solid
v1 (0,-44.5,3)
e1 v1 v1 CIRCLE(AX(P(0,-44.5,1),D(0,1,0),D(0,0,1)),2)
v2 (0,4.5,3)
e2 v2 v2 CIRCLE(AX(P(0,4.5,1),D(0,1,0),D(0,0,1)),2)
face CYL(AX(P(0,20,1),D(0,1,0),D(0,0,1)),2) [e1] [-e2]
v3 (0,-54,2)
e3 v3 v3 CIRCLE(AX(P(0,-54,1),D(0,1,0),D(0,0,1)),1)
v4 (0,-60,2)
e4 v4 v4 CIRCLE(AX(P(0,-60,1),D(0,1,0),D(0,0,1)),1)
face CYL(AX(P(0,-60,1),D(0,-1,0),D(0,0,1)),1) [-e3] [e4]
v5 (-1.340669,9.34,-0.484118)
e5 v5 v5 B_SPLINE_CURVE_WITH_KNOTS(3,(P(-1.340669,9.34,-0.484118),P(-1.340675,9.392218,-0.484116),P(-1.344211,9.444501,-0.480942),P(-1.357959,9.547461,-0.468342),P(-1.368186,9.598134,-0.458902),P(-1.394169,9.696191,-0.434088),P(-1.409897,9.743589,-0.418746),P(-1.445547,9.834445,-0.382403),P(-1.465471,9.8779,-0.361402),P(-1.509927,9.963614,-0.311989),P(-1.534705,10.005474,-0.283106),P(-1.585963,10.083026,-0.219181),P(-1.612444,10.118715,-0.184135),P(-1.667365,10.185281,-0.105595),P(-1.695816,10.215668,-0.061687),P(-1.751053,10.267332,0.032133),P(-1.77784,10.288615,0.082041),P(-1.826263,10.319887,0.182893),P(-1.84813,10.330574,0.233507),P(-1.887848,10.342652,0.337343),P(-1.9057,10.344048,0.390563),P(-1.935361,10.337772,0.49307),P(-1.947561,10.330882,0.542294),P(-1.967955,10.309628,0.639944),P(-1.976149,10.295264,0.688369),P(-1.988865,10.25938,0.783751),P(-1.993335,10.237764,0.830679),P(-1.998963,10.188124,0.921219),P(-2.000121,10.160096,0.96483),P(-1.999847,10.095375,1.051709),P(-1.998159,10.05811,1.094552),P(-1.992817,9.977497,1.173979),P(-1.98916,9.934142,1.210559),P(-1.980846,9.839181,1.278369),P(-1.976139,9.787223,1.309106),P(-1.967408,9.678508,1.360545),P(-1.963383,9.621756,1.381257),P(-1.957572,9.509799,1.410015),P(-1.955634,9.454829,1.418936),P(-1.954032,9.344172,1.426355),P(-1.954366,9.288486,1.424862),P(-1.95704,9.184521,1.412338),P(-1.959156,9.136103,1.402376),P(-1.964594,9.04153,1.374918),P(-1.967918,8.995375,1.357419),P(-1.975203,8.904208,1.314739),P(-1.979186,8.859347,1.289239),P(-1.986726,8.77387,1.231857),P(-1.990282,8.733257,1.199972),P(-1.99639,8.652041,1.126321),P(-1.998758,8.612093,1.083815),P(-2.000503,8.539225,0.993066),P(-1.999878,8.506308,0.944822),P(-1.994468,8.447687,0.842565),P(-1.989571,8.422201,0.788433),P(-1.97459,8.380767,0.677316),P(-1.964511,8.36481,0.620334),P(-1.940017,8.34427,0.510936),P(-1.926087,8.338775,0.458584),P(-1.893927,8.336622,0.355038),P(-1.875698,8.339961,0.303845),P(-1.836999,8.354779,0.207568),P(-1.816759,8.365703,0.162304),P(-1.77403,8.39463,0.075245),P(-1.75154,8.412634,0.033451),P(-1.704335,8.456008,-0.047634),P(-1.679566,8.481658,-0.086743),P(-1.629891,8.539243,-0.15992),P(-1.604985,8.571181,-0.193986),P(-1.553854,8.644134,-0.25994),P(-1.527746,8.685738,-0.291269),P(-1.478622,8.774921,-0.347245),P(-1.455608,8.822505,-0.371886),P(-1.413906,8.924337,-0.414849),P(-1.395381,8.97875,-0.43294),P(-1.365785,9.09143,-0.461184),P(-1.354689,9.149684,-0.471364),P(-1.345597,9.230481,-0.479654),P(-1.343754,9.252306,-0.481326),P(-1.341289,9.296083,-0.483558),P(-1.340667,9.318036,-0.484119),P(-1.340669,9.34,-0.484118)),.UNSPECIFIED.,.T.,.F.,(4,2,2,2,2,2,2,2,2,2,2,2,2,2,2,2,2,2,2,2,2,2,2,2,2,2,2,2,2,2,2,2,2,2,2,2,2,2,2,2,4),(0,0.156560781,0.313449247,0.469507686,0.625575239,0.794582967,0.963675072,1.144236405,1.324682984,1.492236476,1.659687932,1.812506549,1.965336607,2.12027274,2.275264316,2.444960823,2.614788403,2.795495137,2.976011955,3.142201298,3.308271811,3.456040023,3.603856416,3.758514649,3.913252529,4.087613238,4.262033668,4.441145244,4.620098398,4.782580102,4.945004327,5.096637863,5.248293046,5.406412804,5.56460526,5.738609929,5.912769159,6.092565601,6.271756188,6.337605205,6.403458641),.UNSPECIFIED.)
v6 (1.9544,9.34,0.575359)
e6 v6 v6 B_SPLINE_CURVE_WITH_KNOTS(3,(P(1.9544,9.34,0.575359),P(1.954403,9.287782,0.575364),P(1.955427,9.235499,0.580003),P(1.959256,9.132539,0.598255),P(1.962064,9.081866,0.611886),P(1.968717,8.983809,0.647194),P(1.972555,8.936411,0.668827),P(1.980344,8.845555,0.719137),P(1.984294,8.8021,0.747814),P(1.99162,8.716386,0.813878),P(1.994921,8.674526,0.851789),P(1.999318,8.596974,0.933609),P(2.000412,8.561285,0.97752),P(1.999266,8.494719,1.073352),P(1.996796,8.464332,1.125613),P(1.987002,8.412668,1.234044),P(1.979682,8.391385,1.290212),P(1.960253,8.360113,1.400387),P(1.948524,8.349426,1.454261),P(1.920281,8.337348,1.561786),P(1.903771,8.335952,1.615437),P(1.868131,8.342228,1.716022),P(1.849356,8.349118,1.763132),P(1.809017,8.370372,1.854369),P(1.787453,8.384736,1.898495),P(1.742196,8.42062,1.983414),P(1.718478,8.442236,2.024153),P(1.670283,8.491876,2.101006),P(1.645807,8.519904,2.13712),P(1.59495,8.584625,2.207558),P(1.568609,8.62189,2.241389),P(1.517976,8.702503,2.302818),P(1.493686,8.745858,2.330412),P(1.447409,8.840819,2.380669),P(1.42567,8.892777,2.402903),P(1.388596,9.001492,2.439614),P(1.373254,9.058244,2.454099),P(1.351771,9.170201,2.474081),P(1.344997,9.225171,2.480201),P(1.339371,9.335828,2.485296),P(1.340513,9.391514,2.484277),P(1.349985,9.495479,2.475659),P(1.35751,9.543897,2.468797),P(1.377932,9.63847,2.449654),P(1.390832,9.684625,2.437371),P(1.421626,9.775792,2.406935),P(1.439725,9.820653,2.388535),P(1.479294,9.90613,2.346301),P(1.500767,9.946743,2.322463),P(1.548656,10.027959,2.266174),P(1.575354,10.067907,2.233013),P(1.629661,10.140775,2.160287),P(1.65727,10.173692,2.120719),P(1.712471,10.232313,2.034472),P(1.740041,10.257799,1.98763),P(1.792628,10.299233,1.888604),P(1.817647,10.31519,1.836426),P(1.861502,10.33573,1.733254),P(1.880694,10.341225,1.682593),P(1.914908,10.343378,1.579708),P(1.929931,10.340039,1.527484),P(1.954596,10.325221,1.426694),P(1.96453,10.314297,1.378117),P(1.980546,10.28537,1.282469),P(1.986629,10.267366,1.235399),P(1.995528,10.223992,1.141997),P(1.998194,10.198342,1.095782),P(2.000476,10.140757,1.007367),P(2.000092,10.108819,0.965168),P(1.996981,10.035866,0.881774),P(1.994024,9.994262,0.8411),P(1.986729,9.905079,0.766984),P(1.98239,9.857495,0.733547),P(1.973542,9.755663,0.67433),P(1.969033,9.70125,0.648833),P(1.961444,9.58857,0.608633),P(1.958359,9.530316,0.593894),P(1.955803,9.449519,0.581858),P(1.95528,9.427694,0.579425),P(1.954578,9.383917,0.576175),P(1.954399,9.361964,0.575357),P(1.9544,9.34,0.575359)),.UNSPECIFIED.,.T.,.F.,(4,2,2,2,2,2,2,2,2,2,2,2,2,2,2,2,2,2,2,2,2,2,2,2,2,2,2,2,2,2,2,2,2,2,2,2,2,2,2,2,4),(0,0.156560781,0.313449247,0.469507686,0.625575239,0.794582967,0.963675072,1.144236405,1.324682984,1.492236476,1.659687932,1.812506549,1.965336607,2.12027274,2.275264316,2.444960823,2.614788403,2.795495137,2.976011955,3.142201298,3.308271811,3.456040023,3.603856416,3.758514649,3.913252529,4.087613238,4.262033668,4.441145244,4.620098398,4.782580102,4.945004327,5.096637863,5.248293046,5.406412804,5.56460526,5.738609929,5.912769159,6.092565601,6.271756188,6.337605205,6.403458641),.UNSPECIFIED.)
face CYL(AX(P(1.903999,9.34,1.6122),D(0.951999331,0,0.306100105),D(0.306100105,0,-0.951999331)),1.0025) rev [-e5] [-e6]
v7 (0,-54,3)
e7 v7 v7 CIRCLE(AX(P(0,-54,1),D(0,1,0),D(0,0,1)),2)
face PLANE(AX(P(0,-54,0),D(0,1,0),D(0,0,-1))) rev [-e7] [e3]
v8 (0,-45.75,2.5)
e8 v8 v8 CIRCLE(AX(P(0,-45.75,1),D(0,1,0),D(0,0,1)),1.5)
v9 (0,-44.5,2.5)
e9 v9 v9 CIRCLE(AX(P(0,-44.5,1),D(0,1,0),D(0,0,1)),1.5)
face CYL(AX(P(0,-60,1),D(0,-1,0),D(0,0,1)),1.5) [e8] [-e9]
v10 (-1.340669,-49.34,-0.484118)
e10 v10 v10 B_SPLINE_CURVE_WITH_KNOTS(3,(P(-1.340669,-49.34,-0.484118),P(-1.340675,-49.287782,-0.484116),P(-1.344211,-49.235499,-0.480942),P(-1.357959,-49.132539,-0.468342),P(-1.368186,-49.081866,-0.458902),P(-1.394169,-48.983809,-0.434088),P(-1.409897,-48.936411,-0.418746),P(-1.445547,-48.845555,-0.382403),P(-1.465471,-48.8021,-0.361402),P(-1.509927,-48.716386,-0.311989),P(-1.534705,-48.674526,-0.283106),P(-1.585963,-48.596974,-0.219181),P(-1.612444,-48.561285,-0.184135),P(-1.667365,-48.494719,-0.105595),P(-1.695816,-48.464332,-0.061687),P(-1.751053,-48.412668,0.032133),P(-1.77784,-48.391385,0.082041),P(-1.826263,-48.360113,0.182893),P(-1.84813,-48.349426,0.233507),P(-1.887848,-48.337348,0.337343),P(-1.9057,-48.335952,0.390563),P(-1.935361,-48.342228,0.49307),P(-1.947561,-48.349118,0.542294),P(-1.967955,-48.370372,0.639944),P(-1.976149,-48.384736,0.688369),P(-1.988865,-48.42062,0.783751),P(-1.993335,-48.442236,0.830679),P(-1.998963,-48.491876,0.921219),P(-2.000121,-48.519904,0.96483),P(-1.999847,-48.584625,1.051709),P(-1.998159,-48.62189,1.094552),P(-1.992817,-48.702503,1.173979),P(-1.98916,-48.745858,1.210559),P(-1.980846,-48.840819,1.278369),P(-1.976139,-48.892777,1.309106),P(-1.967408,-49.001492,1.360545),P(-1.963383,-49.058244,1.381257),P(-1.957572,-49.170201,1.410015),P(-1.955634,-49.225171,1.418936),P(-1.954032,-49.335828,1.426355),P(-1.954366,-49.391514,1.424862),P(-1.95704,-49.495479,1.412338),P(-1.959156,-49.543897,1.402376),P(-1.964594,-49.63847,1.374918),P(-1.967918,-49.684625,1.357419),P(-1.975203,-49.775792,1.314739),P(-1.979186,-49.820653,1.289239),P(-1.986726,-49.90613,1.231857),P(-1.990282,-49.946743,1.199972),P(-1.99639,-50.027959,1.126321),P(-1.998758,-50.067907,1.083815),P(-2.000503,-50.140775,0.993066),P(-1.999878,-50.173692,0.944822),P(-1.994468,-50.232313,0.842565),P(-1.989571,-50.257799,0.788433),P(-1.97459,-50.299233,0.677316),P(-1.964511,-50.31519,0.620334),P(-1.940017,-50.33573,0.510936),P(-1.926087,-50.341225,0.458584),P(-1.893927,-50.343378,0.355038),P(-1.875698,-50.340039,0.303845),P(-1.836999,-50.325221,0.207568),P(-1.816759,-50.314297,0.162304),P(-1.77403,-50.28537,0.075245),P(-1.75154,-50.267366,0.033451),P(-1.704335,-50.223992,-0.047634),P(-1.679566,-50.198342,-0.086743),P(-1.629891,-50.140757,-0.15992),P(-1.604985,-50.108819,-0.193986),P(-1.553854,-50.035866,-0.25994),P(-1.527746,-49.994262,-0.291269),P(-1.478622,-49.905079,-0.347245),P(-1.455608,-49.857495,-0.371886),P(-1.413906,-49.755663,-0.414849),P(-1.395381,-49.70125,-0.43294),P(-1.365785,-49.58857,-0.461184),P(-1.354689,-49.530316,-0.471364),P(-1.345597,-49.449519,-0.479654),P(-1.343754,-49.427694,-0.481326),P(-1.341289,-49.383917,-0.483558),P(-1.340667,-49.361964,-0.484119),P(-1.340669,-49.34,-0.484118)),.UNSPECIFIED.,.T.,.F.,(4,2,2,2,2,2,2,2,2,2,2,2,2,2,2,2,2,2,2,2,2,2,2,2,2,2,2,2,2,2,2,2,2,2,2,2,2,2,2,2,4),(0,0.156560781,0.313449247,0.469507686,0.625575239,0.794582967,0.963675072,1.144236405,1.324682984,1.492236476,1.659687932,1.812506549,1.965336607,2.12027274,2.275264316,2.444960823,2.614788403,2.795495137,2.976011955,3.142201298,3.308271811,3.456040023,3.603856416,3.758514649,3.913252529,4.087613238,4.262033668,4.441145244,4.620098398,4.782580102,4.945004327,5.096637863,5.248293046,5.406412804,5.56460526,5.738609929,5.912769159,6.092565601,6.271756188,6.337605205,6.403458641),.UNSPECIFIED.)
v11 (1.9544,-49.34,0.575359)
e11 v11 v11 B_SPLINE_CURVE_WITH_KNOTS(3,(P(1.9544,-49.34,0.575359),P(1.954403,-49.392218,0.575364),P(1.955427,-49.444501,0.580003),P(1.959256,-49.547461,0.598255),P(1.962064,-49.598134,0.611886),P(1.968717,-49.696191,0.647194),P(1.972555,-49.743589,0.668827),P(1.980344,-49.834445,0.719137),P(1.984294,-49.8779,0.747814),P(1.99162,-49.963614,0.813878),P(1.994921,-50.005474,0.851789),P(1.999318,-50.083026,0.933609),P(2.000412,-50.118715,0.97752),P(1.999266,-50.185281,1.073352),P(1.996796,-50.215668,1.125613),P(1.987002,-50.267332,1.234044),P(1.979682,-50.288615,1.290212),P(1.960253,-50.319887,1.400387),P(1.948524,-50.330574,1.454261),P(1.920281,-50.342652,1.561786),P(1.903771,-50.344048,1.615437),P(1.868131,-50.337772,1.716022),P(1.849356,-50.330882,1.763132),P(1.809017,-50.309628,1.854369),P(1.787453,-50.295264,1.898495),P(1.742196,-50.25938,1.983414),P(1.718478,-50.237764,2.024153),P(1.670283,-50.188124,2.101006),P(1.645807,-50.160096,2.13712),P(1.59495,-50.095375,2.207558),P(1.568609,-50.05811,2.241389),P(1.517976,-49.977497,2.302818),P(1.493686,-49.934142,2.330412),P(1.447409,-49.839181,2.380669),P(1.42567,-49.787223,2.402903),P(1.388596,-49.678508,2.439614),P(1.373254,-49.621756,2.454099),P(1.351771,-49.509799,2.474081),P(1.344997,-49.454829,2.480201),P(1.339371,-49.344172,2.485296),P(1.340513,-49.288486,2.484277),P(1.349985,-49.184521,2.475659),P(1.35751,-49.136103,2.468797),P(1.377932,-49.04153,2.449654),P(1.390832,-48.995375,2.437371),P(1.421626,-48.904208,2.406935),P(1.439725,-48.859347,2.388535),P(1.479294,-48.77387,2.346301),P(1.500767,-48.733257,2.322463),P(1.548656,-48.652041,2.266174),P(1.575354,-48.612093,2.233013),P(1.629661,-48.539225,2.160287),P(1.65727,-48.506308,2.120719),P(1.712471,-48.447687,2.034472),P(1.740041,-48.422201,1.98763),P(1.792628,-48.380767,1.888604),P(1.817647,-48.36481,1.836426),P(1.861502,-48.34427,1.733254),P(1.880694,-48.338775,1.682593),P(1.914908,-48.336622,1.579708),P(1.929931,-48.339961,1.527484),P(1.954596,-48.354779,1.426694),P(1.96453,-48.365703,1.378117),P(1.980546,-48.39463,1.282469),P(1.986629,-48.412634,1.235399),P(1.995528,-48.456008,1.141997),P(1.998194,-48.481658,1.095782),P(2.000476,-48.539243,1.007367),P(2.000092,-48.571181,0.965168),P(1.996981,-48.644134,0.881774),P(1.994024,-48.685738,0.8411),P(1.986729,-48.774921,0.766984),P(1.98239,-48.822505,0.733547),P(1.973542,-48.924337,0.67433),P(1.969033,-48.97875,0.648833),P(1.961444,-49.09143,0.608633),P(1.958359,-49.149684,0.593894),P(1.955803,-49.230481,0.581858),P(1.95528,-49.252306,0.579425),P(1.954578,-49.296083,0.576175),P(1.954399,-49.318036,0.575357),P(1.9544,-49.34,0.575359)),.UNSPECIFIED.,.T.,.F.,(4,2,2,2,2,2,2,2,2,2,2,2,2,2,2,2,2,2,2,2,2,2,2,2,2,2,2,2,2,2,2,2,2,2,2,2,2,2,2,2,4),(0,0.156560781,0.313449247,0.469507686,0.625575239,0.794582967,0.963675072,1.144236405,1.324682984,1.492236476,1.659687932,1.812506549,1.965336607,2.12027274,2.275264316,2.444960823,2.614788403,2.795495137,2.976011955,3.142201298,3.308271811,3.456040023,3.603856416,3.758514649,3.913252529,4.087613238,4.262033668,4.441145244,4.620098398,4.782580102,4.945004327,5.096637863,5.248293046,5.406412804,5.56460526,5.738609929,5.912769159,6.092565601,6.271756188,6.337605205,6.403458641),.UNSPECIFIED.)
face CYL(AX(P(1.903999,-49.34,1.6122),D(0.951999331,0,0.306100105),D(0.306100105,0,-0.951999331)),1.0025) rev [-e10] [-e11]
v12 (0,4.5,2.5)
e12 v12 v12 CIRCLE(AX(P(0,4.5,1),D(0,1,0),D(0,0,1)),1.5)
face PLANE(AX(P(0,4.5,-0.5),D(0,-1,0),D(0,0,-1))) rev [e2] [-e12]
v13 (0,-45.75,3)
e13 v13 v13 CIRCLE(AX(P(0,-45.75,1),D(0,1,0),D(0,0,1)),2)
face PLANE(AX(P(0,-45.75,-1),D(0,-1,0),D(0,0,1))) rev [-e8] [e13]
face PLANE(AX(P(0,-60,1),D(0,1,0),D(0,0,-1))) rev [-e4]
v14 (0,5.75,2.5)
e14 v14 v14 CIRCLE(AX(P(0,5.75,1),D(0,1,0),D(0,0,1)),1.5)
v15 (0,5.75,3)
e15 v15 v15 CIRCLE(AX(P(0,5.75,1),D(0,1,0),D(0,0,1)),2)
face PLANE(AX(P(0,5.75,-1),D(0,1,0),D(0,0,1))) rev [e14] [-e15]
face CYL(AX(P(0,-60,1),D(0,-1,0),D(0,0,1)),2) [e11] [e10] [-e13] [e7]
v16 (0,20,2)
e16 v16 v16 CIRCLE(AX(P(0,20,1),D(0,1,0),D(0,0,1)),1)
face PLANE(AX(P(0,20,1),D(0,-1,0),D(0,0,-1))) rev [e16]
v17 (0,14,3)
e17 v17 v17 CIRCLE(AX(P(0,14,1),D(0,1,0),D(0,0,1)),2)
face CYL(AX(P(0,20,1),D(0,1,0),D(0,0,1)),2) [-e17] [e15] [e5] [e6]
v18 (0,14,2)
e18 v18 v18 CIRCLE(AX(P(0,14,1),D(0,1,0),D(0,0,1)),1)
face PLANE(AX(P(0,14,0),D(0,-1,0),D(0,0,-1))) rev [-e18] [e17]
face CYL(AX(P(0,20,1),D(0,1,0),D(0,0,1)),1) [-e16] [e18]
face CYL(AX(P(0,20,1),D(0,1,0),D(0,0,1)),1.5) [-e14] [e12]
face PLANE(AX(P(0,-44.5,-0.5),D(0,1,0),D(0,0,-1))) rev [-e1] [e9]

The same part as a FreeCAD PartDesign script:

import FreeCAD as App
import Part
import Sketcher
Q = App.Units.Quantity

doc = App.newDocument("Part")
body = doc.addObject("PartDesign::Body", "Body")

# Sketch on YZ plane
sketch1 = body.newObject("Sketcher::SketchObject", "Sketch")
sketch1.AttachmentSupport = (doc.getObject("YZ_Plane"), [""])
sketch1.MapMode = "FlatFace"
sketch1.addGeometry([
    Part.LineSegment(App.Vector(20, 0, 0), App.Vector(20, 1, 0)),  # 0
    Part.LineSegment(App.Vector(20, 1, 0), App.Vector(-20, 1, 0)),  # 1
    Part.LineSegment(App.Vector(-20, 1, 0), App.Vector(-20, -1, 0)),  # 2
    Part.LineSegment(App.Vector(-20, -1, 0), App.Vector(4.5, -1, 0)),  # 3
    Part.LineSegment(App.Vector(4.5, -1, 0), App.Vector(4.5, -0.5, 0)),  # 4
    Part.LineSegment(App.Vector(4.5, -0.5, 0), App.Vector(5.8, -0.5, 0)),  # 5
    Part.LineSegment(App.Vector(5.8, -0.5, 0), App.Vector(5.8, -1, 0)),  # 6
    Part.LineSegment(App.Vector(5.8, -1, 0), App.Vector(14, -1, 0)),  # 7
    Part.LineSegment(App.Vector(14, -1, 0), App.Vector(14, 0, 0)),  # 8
    Part.LineSegment(App.Vector(14, 0, 0), App.Vector(20, 0, 0)),  # 9
], False)
sketch1.addGeometry(Part.LineSegment(App.Vector(20, 1, 0), App.Vector(-20, 1, 0)), True)  # axis
sketch1.addConstraint([
    Sketcher.Constraint("Coincident", 0, 2, 1, 1),
    Sketcher.Constraint("Coincident", 1, 2, 2, 1),
    Sketcher.Constraint("Coincident", 2, 2, 3, 1),
    Sketcher.Constraint("Coincident", 3, 2, 4, 1),
    Sketcher.Constraint("Coincident", 4, 2, 5, 1),
    Sketcher.Constraint("Coincident", 5, 2, 6, 1),
    Sketcher.Constraint("Coincident", 6, 2, 7, 1),
    Sketcher.Constraint("Coincident", 7, 2, 8, 1),
    Sketcher.Constraint("Coincident", 8, 2, 9, 1),
    Sketcher.Constraint("Coincident", 9, 2, 0, 1),
    Sketcher.Constraint("Vertical", 0),
    Sketcher.Constraint("Horizontal", 1),
    Sketcher.Constraint("Vertical", 2),
    Sketcher.Constraint("Horizontal", 3),
    Sketcher.Constraint("Vertical", 4),
    Sketcher.Constraint("Horizontal", 5),
    Sketcher.Constraint("Vertical", 6),
    Sketcher.Constraint("Horizontal", 7),
    Sketcher.Constraint("Vertical", 8),
    Sketcher.Constraint("Horizontal", 9),
    Sketcher.Constraint("Horizontal", 10),
    Sketcher.Constraint("Coincident", 10, 1, 0, 2),
    Sketcher.Constraint("Symmetric", 0, 2, 2, 2, -1, 1),
    Sketcher.Constraint("PointOnObject", 8, 2, -1),
    Sketcher.Constraint("Horizontal", 3, 2, 6, 2),
    Sketcher.Constraint("Vertical", 2, 2, 10, 2),
    Sketcher.Constraint("DistanceX", 1, 2, 1, 1, Q("40 mm")),
    Sketcher.Constraint("DistanceX", 9, 1, 9, 2, Q("6 mm")),
    Sketcher.Constraint("DistanceY", 0, 1, 0, 2, Q("1 mm")),
    Sketcher.Constraint("DistanceX", 3, 1, 3, 2, Q("24.5 mm")),
    Sketcher.Constraint("DistanceY", 4, 1, 4, 2, Q("0.5 mm")),
    Sketcher.Constraint("DistanceX", 5, 1, 5, 2, Q("1.25 mm")),
])
revolution = body.newObject("PartDesign::Revolution", "Revolution")
revolution.Profile = sketch1
revolution.ReferenceAxis = (sketch1, ["Axis0"])
revolution.Angle = 360

# Sketch on an angled plane
sketch2 = body.newObject("Sketcher::SketchObject", "Sketch001")
sketch2.Placement = App.Placement(App.Vector(2.195406, 0, 0.705897), App.Rotation(App.Vector(-0.306100105, 0, 0.951999331), App.Vector(0, -1.000000001, 0), App.Vector(0.951999331, 0, 0.306100105), "ZXY"))
sketch2.addGeometry(Part.Circle(App.Vector(1, -9.3, 0), App.Vector(0, 0, 1), 1), False)
sketch2.addConstraint([
    Sketcher.Constraint("Diameter", 0, Q("2.005 mm")),
    Sketcher.Constraint("DistanceY", 0, 3, -1, 1, Q("9.34 mm")),
    Sketcher.Constraint("DistanceX", -1, 1, 0, 3, Q("0.951999 mm")),
])
doc.recompute()
hole = body.newObject("PartDesign::Hole", "Hole")
hole.Profile = sketch2
hole.ThreadType = "None"
hole.Diameter = 2.005
hole.DepthType = "ThroughAll"
doc.recompute()

datumplane = body.newObject("PartDesign::Plane", "DatumPlane")
datumplane.AttachmentSupport = (doc.getObject("XZ_Plane"), [""])
datumplane.MapMode = "FlatFace"
datumplane.AttachmentOffset = App.Placement(App.Vector(0, 0, 20), App.Rotation())
mirrored = body.newObject("PartDesign::Mirrored", "Mirrored")
mirrored.Originals = [revolution, hole]
mirrored.MirrorPlane = (datumplane, [""])
body.Tip = mirrored

doc.recompute()
